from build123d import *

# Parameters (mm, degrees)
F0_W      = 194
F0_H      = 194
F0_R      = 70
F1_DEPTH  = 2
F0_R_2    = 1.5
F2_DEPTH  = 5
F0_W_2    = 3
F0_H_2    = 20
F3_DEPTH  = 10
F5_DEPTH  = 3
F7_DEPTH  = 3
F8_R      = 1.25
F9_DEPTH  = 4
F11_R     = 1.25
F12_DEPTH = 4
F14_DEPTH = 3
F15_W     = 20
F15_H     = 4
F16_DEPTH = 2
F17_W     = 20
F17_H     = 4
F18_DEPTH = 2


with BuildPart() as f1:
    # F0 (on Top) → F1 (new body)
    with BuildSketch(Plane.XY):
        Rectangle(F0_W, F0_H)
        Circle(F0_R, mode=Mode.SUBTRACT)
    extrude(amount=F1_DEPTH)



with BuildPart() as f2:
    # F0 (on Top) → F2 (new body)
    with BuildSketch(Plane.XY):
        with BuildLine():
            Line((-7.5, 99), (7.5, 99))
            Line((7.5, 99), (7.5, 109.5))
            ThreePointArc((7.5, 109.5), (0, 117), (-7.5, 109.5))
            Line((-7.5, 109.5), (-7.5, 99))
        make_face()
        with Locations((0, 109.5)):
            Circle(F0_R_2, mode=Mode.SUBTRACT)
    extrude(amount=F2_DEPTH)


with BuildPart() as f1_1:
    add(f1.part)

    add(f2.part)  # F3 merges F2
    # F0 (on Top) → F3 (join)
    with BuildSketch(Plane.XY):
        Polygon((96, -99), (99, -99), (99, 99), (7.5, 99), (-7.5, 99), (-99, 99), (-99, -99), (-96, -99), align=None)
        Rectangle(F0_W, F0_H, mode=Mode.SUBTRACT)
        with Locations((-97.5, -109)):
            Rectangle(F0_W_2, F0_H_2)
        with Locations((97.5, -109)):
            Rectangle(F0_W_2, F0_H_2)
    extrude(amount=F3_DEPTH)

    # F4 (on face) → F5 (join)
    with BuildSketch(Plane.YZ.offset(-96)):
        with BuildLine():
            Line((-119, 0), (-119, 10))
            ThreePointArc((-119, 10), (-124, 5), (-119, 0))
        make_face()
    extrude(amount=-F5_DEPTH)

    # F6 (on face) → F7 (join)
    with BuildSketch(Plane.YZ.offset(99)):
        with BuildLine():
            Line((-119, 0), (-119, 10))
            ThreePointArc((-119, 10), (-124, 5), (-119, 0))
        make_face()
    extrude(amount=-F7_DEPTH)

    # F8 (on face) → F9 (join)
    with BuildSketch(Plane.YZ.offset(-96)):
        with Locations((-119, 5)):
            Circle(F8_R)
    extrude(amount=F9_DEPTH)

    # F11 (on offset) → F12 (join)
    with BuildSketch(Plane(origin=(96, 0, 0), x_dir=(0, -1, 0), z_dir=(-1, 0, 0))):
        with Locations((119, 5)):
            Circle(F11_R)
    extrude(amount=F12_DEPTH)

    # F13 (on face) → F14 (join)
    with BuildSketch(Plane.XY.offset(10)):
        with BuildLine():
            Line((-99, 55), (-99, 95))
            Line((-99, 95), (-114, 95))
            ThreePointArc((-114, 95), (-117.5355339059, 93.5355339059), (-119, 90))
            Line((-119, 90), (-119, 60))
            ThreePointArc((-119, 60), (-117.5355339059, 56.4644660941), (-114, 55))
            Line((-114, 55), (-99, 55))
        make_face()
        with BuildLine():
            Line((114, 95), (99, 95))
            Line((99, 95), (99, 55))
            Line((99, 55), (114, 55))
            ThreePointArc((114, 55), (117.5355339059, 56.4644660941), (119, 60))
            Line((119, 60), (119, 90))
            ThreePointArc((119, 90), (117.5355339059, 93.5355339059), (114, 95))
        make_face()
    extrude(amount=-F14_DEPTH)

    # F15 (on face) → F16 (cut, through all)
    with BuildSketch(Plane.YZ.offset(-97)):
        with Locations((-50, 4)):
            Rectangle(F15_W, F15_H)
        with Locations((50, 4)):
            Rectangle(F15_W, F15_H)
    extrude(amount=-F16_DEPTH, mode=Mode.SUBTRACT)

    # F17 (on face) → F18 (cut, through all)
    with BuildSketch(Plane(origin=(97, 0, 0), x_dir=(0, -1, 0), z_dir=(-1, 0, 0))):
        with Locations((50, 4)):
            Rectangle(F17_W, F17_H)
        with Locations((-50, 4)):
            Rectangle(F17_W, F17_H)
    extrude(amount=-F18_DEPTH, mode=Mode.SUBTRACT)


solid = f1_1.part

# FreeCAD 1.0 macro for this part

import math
import FreeCAD as App
import Part
import Sketcher

V = App.Vector


def add_polygon(sketch, points):
    """Adds a closed chain of lines whose ends are joined by coincident constraints."""
    first, n = sketch.GeometryCount, len(points)
    for a, b in zip(points, points[1:] + points[:1]):
        sketch.addGeometry(Part.LineSegment(App.Vector(*a, 0), App.Vector(*b, 0)), False)
    for i in range(n):
        sketch.addConstraint(Sketcher.Constraint("Coincident", first + i, 2, first + (i + 1) % n, 1))

doc = App.newDocument("Part")
body = doc.addObject("PartDesign::Body", "Body")

# Sketch on XY plane
sketch1 = body.newObject("Sketcher::SketchObject", "Sketch")
sketch1.AttachmentSupport = (doc.getObject("XY_Plane"), [""])
sketch1.MapMode = "FlatFace"
add_polygon(sketch1, [(-97, 97), (-97, -97), (97, -97), (97, 97)])  # lines 0-3
sketch1.addGeometry(Part.Circle(V(0, 0, 0), V(0, 0, 1), 70), False)  # 4
sketch1.addConstraint(Sketcher.Constraint("Vertical", 0))
sketch1.addConstraint(Sketcher.Constraint("Horizontal", 1))
sketch1.addConstraint(Sketcher.Constraint("Vertical", 2))
sketch1.addConstraint(Sketcher.Constraint("Horizontal", 3))
sketch1.addConstraint(Sketcher.Constraint("Coincident", 4, 3, -1, 1))
sketch1.addConstraint(Sketcher.Constraint("Symmetric", 0, 2, 2, 2, -1, 1))
sketch1.addConstraint(Sketcher.Constraint("Equal", 3, 0))
sketch1.addConstraint(Sketcher.Constraint("Diameter", 4, 140.0))
sketch1.addConstraint(Sketcher.Constraint("DistanceX", 1, 1, 1, 2, 194.0))
pad1 = body.newObject("PartDesign::Pad", "Pad")
pad1.Profile = sketch1
pad1.Length = 2
body2 = doc.addObject("PartDesign::Body", "Body001")

# Sketch on XY plane
sketch2 = body2.newObject("Sketcher::SketchObject", "Sketch001")
sketch2.AttachmentSupport = (doc.getObject("XY_Plane001"), [""])
sketch2.MapMode = "FlatFace"
sketch2.addGeometry(Part.LineSegment(V(-7.5, 99, 0), V(7.5, 99, 0)), False)
sketch2.addGeometry(Part.LineSegment(V(7.5, 99, 0), V(7.5, 109.5, 0)), False)
sketch2.addGeometry(Part.ArcOfCircle(Part.Circle(V(0, 109.5, 0), V(0, 0, 1), 7.5), math.radians(0), math.radians(180)), False)
sketch2.addGeometry(Part.LineSegment(V(-7.5, 109.5, 0), V(-7.5, 99, 0)), False)
sketch2.addGeometry(Part.Circle(V(0, 109.5, 0), V(0, 0, 1), 1.5), False)
sketch2.addConstraint(Sketcher.Constraint("Coincident", 0, 2, 1, 1))
sketch2.addConstraint(Sketcher.Constraint("Tangent", 1, 2, 2, 1))
sketch2.addConstraint(Sketcher.Constraint("Tangent", 2, 2, 3, 1))
sketch2.addConstraint(Sketcher.Constraint("Coincident", 3, 2, 0, 1))
sketch2.addConstraint(Sketcher.Constraint("Horizontal", 0))
sketch2.addConstraint(Sketcher.Constraint("Vertical", 1))
sketch2.addConstraint(Sketcher.Constraint("Vertical", 3))
sketch2.addConstraint(Sketcher.Constraint("Coincident", 4, 3, 2, 3))
sketch2.addConstraint(Sketcher.Constraint("PointOnObject", 2, 3, -2))
sketch2.addConstraint(Sketcher.Constraint("Diameter", 4, 3.0))
sketch2.addConstraint(Sketcher.Constraint("Radius", 2, 7.5))
sketch2.addConstraint(Sketcher.Constraint("DistanceY", 1, 1, 1, 2, 10.5))
sketch2.addConstraint(Sketcher.Constraint("DistanceY", -1, 1, 0, 2, 99.0))
pad2 = body2.newObject("PartDesign::Pad", "Pad001")
pad2.Profile = sketch2
pad2.Length = 5
body.AllowCompound = True
doc.recompute()

boolean = body.newObject("PartDesign::Boolean", "Boolean")
boolean.Type = "Fuse"
boolean.addObjects([body2])

# Sketch on XY plane
sketch3 = body.newObject("Sketcher::SketchObject", "Sketch002")
sketch3.AttachmentSupport = (doc.getObject("XY_Plane"), [""])
sketch3.MapMode = "FlatFace"
add_polygon(sketch3, [(99, 99), (-99, 99), (-99, -119), (-96, -119), (-96, -99), (96, -99), (96, -119), (99, -119)])  # lines 0-7
add_polygon(sketch3, [(97, -97), (-97, -97), (-97, 97), (97, 97)])  # lines 8-11
sketch3.addConstraint(Sketcher.Constraint("Horizontal", 0))
sketch3.addConstraint(Sketcher.Constraint("Vertical", 1))
sketch3.addConstraint(Sketcher.Constraint("Horizontal", 2))
sketch3.addConstraint(Sketcher.Constraint("Vertical", 3))
sketch3.addConstraint(Sketcher.Constraint("Horizontal", 4))
sketch3.addConstraint(Sketcher.Constraint("Vertical", 5))
sketch3.addConstraint(Sketcher.Constraint("Horizontal", 6))
sketch3.addConstraint(Sketcher.Constraint("Vertical", 7))
sketch3.addConstraint(Sketcher.Constraint("Horizontal", 8))
sketch3.addConstraint(Sketcher.Constraint("Vertical", 9))
sketch3.addConstraint(Sketcher.Constraint("Horizontal", 10))
sketch3.addConstraint(Sketcher.Constraint("Vertical", 11))
sketch3.addConstraint(Sketcher.Constraint("Symmetric", 8, 2, 10, 2, -1, 1))
sketch3.addConstraint(Sketcher.Constraint("Symmetric", 2, 2, 5, 2, -2))
sketch3.addConstraint(Sketcher.Constraint("Equal", 2, 6))
sketch3.addConstraint(Sketcher.Constraint("Equal", 10, 9))
sketch3.addConstraint(Sketcher.Constraint("DistanceX", 0, 2, 0, 1, 198.0))
sketch3.addConstraint(Sketcher.Constraint("DistanceX", 2, 1, 2, 2, 3.0))
sketch3.addConstraint(Sketcher.Constraint("DistanceX", 8, 2, 8, 1, 194.0))
sketch3.addConstraint(Sketcher.Constraint("DistanceY", 1, 2, 1, 1, 218.0))
sketch3.addConstraint(Sketcher.Constraint("DistanceY", 3, 1, 3, 2, 20.0))
sketch3.addConstraint(Sketcher.Constraint("DistanceY", -1, 1, 0, 2, 99.0))
pad3 = body.newObject("PartDesign::Pad", "Pad002")
pad3.Profile = sketch3
pad3.Length = 10

# Sketch on YZ plane
sketch4 = body.newObject("Sketcher::SketchObject", "Sketch003")
sketch4.AttachmentSupport = (doc.getObject("YZ_Plane"), [""])
sketch4.MapMode = "FlatFace"
sketch4.AttachmentOffset = App.Placement(V(0, 0, -96), App.Rotation())
sketch4.addGeometry(Part.LineSegment(V(-119, 0, 0), V(-119, 10, 0)), False)
sketch4.addGeometry(Part.ArcOfCircle(Part.Circle(V(-119, 5, 0), V(0, 0, 1), 5), math.radians(90), math.radians(270)), False)
sketch4.addConstraint(Sketcher.Constraint("Coincident", 0, 1, 1, 2))
sketch4.addConstraint(Sketcher.Constraint("Coincident", 1, 1, 0, 2))
sketch4.addConstraint(Sketcher.Constraint("Vertical", 0))
sketch4.addConstraint(Sketcher.Constraint("PointOnObject", 0, 1, -1))
sketch4.addConstraint(Sketcher.Constraint("Vertical", 1, 3, 0, 1))
sketch4.addConstraint(Sketcher.Constraint("Radius", 1, 5.0))
sketch4.addConstraint(Sketcher.Constraint("DistanceX", 1, 3, -1, 1, 119.0))
pad4 = body.newObject("PartDesign::Pad", "Pad003")
pad4.Profile = sketch4
pad4.Length = 3
pad4.Reversed = True

# Sketch on YZ plane
sketch5 = body.newObject("Sketcher::SketchObject", "Sketch004")
sketch5.AttachmentSupport = (doc.getObject("YZ_Plane"), [""])
sketch5.MapMode = "FlatFace"
sketch5.AttachmentOffset = App.Placement(V(0, 0, 99), App.Rotation())
sketch5.addGeometry(Part.LineSegment(V(-119, 0, 0), V(-119, 10, 0)), False)
sketch5.addGeometry(Part.ArcOfCircle(Part.Circle(V(-119, 5, 0), V(0, 0, 1), 5), math.radians(90), math.radians(270)), False)
sketch5.addConstraint(Sketcher.Constraint("Coincident", 0, 1, 1, 2))
sketch5.addConstraint(Sketcher.Constraint("Coincident", 1, 1, 0, 2))
sketch5.addConstraint(Sketcher.Constraint("Vertical", 0))
sketch5.addConstraint(Sketcher.Constraint("PointOnObject", 0, 1, -1))
sketch5.addConstraint(Sketcher.Constraint("Vertical", 1, 3, 0, 1))
sketch5.addConstraint(Sketcher.Constraint("Radius", 1, 5.0))
sketch5.addConstraint(Sketcher.Constraint("DistanceX", 1, 3, -1, 1, 119.0))
pad5 = body.newObject("PartDesign::Pad", "Pad004")
pad5.Profile = sketch5
pad5.Length = 3
pad5.Reversed = True

# Sketch on YZ plane
sketch6 = body.newObject("Sketcher::SketchObject", "Sketch005")
sketch6.AttachmentSupport = (doc.getObject("YZ_Plane"), [""])
sketch6.MapMode = "FlatFace"
sketch6.AttachmentOffset = App.Placement(V(0, 0, -96), App.Rotation())
sketch6.addGeometry(Part.Circle(V(-119, 5, 0), V(0, 0, 1), 1.2), False)
sketch6.addConstraint(Sketcher.Constraint("Diameter", 0, 2.5))
sketch6.addConstraint(Sketcher.Constraint("DistanceX", 0, 3, -1, 1, 119.0))
sketch6.addConstraint(Sketcher.Constraint("DistanceY", -1, 1, 0, 3, 5.0))
pad6 = body.newObject("PartDesign::Pad", "Pad005")
pad6.Profile = sketch6
pad6.Length = 4

# Sketch on YZ plane
sketch7 = body.newObject("Sketcher::SketchObject", "Sketch006")
sketch7.AttachmentSupport = (doc.getObject("YZ_Plane"), [""])
sketch7.MapMode = "FlatFace"
sketch7.AttachmentOffset = App.Placement(V(0, 0, 96), App.Rotation())
sketch7.addGeometry(Part.Circle(V(-119, 5, 0), V(0, 0, 1), 1.2), False)
sketch7.addConstraint(Sketcher.Constraint("Diameter", 0, 2.5))
sketch7.addConstraint(Sketcher.Constraint("DistanceX", 0, 3, -1, 1, 119.0))
sketch7.addConstraint(Sketcher.Constraint("DistanceY", -1, 1, 0, 3, 5.0))
pad7 = body.newObject("PartDesign::Pad", "Pad006")
pad7.Profile = sketch7
pad7.Length = 4
pad7.Reversed = True

# Sketch on XY plane
sketch8 = body.newObject("Sketcher::SketchObject", "Sketch007")
sketch8.AttachmentSupport = (doc.getObject("XY_Plane"), [""])
sketch8.MapMode = "FlatFace"
sketch8.AttachmentOffset = App.Placement(V(0, 0, 10), App.Rotation())
sketch8.addGeometry(Part.LineSegment(V(-99, 55, 0), V(-99, 95, 0)), False)
sketch8.addGeometry(Part.LineSegment(V(-99, 95, 0), V(-114, 95, 0)), False)
sketch8.addGeometry(Part.ArcOfCircle(Part.Circle(V(-114, 90, 0), V(0, 0, 1), 5), math.radians(90), math.radians(180)), False)
sketch8.addGeometry(Part.LineSegment(V(-119, 90, 0), V(-119, 60, 0)), False)
sketch8.addGeometry(Part.ArcOfCircle(Part.Circle(V(-114, 60, 0), V(0, 0, 1), 5), math.radians(180), math.radians(270)), False)
sketch8.addGeometry(Part.LineSegment(V(-114, 55, 0), V(-99, 55, 0)), False)
sketch8.addGeometry(Part.LineSegment(V(114, 95, 0), V(99, 95, 0)), False)
sketch8.addGeometry(Part.LineSegment(V(99, 95, 0), V(99, 55, 0)), False)
sketch8.addGeometry(Part.LineSegment(V(99, 55, 0), V(114, 55, 0)), False)
sketch8.addGeometry(Part.ArcOfCircle(Part.Circle(V(114, 60, 0), V(0, 0, 1), 5), math.radians(-90), math.radians(0)), False)
sketch8.addGeometry(Part.LineSegment(V(119, 60, 0), V(119, 90, 0)), False)
sketch8.addGeometry(Part.ArcOfCircle(Part.Circle(V(114, 90, 0), V(0, 0, 1), 5), math.radians(0), math.radians(90)), False)
sketch8.addConstraint(Sketcher.Constraint("Coincident", 0, 2, 1, 1))
sketch8.addConstraint(Sketcher.Constraint("Tangent", 1, 2, 2, 1))
sketch8.addConstraint(Sketcher.Constraint("Tangent", 2, 2, 3, 1))
sketch8.addConstraint(Sketcher.Constraint("Tangent", 3, 2, 4, 1))
sketch8.addConstraint(Sketcher.Constraint("Tangent", 4, 2, 5, 1))
sketch8.addConstraint(Sketcher.Constraint("Coincident", 5, 2, 0, 1))
sketch8.addConstraint(Sketcher.Constraint("Coincident", 6, 2, 7, 1))
sketch8.addConstraint(Sketcher.Constraint("Coincident", 7, 2, 8, 1))
sketch8.addConstraint(Sketcher.Constraint("Tangent", 8, 2, 9, 1))
sketch8.addConstraint(Sketcher.Constraint("Tangent", 9, 2, 10, 1))
sketch8.addConstraint(Sketcher.Constraint("Tangent", 10, 2, 11, 1))
sketch8.addConstraint(Sketcher.Constraint("Tangent", 11, 2, 6, 1))
sketch8.addConstraint(Sketcher.Constraint("Vertical", 0))
sketch8.addConstraint(Sketcher.Constraint("Horizontal", 1))
sketch8.addConstraint(Sketcher.Constraint("Vertical", 3))
sketch8.addConstraint(Sketcher.Constraint("Horizontal", 5))
sketch8.addConstraint(Sketcher.Constraint("Horizontal", 6))
sketch8.addConstraint(Sketcher.Constraint("Vertical", 7))
sketch8.addConstraint(Sketcher.Constraint("Horizontal", 8))
sketch8.addConstraint(Sketcher.Constraint("Vertical", 10))
sketch8.addConstraint(Sketcher.Constraint("Equal", 2, 4))
sketch8.addConstraint(Sketcher.Constraint("Equal", 4, 9))
sketch8.addConstraint(Sketcher.Constraint("Equal", 9, 11))
sketch8.addConstraint(Sketcher.Constraint("Symmetric", 4, 3, 9, 3, -2))
sketch8.addConstraint(Sketcher.Constraint("Symmetric", 0, 2, 6, 2, -2))
sketch8.addConstraint(Sketcher.Constraint("Radius", 2, 5.0))
sketch8.addConstraint(Sketcher.Constraint("DistanceX", 1, 2, 1, 1, 15.0))
sketch8.addConstraint(Sketcher.Constraint("DistanceY", 0, 1, 0, 2, 40.0))
sketch8.addConstraint(Sketcher.Constraint("DistanceX", 2, 3, -1, 1, 114.0))
sketch8.addConstraint(Sketcher.Constraint("DistanceY", -1, 1, 2, 3, 90.0))
pad8 = body.newObject("PartDesign::Pad", "Pad007")
pad8.Profile = sketch8
pad8.Length = 3
pad8.Reversed = True

# Sketch on YZ plane
sketch9 = body.newObject("Sketcher::SketchObject", "Sketch008")
sketch9.AttachmentSupport = (doc.getObject("YZ_Plane"), [""])
sketch9.MapMode = "FlatFace"
sketch9.AttachmentOffset = App.Placement(V(0, 0, -97), App.Rotation())
add_polygon(sketch9, [(-60, 6), (-60, 2), (-40, 2), (-40, 6)])  # lines 0-3
add_polygon(sketch9, [(40, 6), (40, 2), (60, 2), (60, 6)])  # lines 4-7
sketch9.addConstraint(Sketcher.Constraint("Vertical", 0))
sketch9.addConstraint(Sketcher.Constraint("Horizontal", 1))
sketch9.addConstraint(Sketcher.Constraint("Vertical", 2))
sketch9.addConstraint(Sketcher.Constraint("Horizontal", 3))
sketch9.addConstraint(Sketcher.Constraint("Vertical", 4))
sketch9.addConstraint(Sketcher.Constraint("Horizontal", 5))
sketch9.addConstraint(Sketcher.Constraint("Vertical", 6))
sketch9.addConstraint(Sketcher.Constraint("Horizontal", 7))
sketch9.addConstraint(Sketcher.Constraint("Symmetric", 1, 2, 4, 2, -2))
sketch9.addConstraint(Sketcher.Constraint("Symmetric", 3, 2, 6, 2, -2))
sketch9.addConstraint(Sketcher.Constraint("DistanceX", 1, 1, 1, 2, 20.0))
sketch9.addConstraint(Sketcher.Constraint("DistanceY", 0, 2, 0, 1, 4.0))
sketch9.addConstraint(Sketcher.Constraint("DistanceX", 0, 2, -1, 1, 60.0))
sketch9.addConstraint(Sketcher.Constraint("DistanceY", -1, 1, 0, 2, 2.0))
pocket1 = body.newObject("PartDesign::Pocket", "Pocket")
pocket1.Profile = sketch9
pocket1.Type = "ThroughAll"

# Sketch on YZ plane
sketch10 = body.newObject("Sketcher::SketchObject", "Sketch009")
sketch10.AttachmentSupport = (doc.getObject("YZ_Plane"), [""])
sketch10.MapMode = "FlatFace"
sketch10.AttachmentOffset = App.Placement(V(0, 0, 97), App.Rotation())
add_polygon(sketch10, [(-40, 6), (-40, 2), (-60, 2), (-60, 6)])  # lines 0-3
add_polygon(sketch10, [(60, 6), (60, 2), (40, 2), (40, 6)])  # lines 4-7
sketch10.addConstraint(Sketcher.Constraint("Vertical", 0))
sketch10.addConstraint(Sketcher.Constraint("Horizontal", 1))
sketch10.addConstraint(Sketcher.Constraint("Vertical", 2))
sketch10.addConstraint(Sketcher.Constraint("Horizontal", 3))
sketch10.addConstraint(Sketcher.Constraint("Vertical", 4))
sketch10.addConstraint(Sketcher.Constraint("Horizontal", 5))
sketch10.addConstraint(Sketcher.Constraint("Vertical", 6))
sketch10.addConstraint(Sketcher.Constraint("Horizontal", 7))
sketch10.addConstraint(Sketcher.Constraint("Symmetric", 1, 2, 4, 2, -2))
sketch10.addConstraint(Sketcher.Constraint("Symmetric", 3, 2, 6, 2, -2))
sketch10.addConstraint(Sketcher.Constraint("DistanceX", 1, 2, 1, 1, 20.0))
sketch10.addConstraint(Sketcher.Constraint("DistanceY", 0, 2, 0, 1, 4.0))
sketch10.addConstraint(Sketcher.Constraint("DistanceX", 0, 2, -1, 1, 40.0))
sketch10.addConstraint(Sketcher.Constraint("DistanceY", -1, 1, 0, 2, 2.0))
pocket2 = body.newObject("PartDesign::Pocket", "Pocket001")
pocket2.Profile = sketch10
pocket2.Type = "ThroughAll"
pocket2.Reversed = True

doc.recompute()
